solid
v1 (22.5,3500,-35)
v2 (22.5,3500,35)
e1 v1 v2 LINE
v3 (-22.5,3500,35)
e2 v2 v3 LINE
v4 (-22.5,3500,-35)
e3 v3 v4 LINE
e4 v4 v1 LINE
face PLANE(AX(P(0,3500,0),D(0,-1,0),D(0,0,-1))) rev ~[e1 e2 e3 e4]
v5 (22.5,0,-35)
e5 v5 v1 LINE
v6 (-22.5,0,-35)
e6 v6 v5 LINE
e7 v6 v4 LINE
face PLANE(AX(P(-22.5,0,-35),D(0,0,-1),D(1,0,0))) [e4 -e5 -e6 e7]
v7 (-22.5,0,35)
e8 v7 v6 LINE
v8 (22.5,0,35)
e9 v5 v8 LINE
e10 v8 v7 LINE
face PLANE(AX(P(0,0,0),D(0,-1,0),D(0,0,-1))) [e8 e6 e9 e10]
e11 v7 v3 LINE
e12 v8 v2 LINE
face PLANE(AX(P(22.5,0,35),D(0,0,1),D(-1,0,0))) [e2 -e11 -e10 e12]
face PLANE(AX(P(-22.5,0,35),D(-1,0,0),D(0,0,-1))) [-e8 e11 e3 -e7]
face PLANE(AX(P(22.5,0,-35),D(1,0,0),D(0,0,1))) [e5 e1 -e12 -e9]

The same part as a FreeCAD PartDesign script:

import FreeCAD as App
import Part
import Sketcher
Q = App.Units.Quantity


def add_polygon(sketch, points):
    """Adds a closed chain of lines whose ends are joined by coincident constraints."""
    first, n = sketch.GeometryCount, len(points)
    for a, b in zip(points, points[1:] + points[:1]):
        sketch.addGeometry(Part.LineSegment(App.Vector(*a, 0), App.Vector(*b, 0)), False)
    for i in range(n):
        sketch.addConstraint(Sketcher.Constraint("Coincident", first + i, 2, first + (i + 1) % n, 1))

doc = App.newDocument("Part")
body = doc.addObject("PartDesign::Body", "Body")

sketch1 = doc.addObject("Sketcher::SketchObject", "Sketch")
body.addObject(sketch1)
sketch1.AttachmentSupport = (doc.XZ_Plane, [""])
sketch1.MapMode = "FlatFace"
add_polygon(sketch1, [(-22.5, 35), (-22.5, -35), (22.5, -35), (22.5, 35)])
sketch1.addConstraint([
    Sketcher.Constraint("Vertical", 0),
    Sketcher.Constraint("Horizontal", 1),
    Sketcher.Constraint("Vertical", 2),
    Sketcher.Constraint("Horizontal", 3),
    Sketcher.Constraint("Symmetric", 0, 2, 2, 2, -1, 1),
    Sketcher.Constraint("DistanceX", 1, 1, 1, 2, Q("45 mm")),
    Sketcher.Constraint("DistanceY", 0, 2, 0, 1, Q("70 mm")),
])
pad1 = doc.addObject("PartDesign::Pad", "Pad")
body.addObject(pad1)
pad1.Profile = sketch1
pad1.Length = 3500
pad1.Reversed = True

doc.recompute()
